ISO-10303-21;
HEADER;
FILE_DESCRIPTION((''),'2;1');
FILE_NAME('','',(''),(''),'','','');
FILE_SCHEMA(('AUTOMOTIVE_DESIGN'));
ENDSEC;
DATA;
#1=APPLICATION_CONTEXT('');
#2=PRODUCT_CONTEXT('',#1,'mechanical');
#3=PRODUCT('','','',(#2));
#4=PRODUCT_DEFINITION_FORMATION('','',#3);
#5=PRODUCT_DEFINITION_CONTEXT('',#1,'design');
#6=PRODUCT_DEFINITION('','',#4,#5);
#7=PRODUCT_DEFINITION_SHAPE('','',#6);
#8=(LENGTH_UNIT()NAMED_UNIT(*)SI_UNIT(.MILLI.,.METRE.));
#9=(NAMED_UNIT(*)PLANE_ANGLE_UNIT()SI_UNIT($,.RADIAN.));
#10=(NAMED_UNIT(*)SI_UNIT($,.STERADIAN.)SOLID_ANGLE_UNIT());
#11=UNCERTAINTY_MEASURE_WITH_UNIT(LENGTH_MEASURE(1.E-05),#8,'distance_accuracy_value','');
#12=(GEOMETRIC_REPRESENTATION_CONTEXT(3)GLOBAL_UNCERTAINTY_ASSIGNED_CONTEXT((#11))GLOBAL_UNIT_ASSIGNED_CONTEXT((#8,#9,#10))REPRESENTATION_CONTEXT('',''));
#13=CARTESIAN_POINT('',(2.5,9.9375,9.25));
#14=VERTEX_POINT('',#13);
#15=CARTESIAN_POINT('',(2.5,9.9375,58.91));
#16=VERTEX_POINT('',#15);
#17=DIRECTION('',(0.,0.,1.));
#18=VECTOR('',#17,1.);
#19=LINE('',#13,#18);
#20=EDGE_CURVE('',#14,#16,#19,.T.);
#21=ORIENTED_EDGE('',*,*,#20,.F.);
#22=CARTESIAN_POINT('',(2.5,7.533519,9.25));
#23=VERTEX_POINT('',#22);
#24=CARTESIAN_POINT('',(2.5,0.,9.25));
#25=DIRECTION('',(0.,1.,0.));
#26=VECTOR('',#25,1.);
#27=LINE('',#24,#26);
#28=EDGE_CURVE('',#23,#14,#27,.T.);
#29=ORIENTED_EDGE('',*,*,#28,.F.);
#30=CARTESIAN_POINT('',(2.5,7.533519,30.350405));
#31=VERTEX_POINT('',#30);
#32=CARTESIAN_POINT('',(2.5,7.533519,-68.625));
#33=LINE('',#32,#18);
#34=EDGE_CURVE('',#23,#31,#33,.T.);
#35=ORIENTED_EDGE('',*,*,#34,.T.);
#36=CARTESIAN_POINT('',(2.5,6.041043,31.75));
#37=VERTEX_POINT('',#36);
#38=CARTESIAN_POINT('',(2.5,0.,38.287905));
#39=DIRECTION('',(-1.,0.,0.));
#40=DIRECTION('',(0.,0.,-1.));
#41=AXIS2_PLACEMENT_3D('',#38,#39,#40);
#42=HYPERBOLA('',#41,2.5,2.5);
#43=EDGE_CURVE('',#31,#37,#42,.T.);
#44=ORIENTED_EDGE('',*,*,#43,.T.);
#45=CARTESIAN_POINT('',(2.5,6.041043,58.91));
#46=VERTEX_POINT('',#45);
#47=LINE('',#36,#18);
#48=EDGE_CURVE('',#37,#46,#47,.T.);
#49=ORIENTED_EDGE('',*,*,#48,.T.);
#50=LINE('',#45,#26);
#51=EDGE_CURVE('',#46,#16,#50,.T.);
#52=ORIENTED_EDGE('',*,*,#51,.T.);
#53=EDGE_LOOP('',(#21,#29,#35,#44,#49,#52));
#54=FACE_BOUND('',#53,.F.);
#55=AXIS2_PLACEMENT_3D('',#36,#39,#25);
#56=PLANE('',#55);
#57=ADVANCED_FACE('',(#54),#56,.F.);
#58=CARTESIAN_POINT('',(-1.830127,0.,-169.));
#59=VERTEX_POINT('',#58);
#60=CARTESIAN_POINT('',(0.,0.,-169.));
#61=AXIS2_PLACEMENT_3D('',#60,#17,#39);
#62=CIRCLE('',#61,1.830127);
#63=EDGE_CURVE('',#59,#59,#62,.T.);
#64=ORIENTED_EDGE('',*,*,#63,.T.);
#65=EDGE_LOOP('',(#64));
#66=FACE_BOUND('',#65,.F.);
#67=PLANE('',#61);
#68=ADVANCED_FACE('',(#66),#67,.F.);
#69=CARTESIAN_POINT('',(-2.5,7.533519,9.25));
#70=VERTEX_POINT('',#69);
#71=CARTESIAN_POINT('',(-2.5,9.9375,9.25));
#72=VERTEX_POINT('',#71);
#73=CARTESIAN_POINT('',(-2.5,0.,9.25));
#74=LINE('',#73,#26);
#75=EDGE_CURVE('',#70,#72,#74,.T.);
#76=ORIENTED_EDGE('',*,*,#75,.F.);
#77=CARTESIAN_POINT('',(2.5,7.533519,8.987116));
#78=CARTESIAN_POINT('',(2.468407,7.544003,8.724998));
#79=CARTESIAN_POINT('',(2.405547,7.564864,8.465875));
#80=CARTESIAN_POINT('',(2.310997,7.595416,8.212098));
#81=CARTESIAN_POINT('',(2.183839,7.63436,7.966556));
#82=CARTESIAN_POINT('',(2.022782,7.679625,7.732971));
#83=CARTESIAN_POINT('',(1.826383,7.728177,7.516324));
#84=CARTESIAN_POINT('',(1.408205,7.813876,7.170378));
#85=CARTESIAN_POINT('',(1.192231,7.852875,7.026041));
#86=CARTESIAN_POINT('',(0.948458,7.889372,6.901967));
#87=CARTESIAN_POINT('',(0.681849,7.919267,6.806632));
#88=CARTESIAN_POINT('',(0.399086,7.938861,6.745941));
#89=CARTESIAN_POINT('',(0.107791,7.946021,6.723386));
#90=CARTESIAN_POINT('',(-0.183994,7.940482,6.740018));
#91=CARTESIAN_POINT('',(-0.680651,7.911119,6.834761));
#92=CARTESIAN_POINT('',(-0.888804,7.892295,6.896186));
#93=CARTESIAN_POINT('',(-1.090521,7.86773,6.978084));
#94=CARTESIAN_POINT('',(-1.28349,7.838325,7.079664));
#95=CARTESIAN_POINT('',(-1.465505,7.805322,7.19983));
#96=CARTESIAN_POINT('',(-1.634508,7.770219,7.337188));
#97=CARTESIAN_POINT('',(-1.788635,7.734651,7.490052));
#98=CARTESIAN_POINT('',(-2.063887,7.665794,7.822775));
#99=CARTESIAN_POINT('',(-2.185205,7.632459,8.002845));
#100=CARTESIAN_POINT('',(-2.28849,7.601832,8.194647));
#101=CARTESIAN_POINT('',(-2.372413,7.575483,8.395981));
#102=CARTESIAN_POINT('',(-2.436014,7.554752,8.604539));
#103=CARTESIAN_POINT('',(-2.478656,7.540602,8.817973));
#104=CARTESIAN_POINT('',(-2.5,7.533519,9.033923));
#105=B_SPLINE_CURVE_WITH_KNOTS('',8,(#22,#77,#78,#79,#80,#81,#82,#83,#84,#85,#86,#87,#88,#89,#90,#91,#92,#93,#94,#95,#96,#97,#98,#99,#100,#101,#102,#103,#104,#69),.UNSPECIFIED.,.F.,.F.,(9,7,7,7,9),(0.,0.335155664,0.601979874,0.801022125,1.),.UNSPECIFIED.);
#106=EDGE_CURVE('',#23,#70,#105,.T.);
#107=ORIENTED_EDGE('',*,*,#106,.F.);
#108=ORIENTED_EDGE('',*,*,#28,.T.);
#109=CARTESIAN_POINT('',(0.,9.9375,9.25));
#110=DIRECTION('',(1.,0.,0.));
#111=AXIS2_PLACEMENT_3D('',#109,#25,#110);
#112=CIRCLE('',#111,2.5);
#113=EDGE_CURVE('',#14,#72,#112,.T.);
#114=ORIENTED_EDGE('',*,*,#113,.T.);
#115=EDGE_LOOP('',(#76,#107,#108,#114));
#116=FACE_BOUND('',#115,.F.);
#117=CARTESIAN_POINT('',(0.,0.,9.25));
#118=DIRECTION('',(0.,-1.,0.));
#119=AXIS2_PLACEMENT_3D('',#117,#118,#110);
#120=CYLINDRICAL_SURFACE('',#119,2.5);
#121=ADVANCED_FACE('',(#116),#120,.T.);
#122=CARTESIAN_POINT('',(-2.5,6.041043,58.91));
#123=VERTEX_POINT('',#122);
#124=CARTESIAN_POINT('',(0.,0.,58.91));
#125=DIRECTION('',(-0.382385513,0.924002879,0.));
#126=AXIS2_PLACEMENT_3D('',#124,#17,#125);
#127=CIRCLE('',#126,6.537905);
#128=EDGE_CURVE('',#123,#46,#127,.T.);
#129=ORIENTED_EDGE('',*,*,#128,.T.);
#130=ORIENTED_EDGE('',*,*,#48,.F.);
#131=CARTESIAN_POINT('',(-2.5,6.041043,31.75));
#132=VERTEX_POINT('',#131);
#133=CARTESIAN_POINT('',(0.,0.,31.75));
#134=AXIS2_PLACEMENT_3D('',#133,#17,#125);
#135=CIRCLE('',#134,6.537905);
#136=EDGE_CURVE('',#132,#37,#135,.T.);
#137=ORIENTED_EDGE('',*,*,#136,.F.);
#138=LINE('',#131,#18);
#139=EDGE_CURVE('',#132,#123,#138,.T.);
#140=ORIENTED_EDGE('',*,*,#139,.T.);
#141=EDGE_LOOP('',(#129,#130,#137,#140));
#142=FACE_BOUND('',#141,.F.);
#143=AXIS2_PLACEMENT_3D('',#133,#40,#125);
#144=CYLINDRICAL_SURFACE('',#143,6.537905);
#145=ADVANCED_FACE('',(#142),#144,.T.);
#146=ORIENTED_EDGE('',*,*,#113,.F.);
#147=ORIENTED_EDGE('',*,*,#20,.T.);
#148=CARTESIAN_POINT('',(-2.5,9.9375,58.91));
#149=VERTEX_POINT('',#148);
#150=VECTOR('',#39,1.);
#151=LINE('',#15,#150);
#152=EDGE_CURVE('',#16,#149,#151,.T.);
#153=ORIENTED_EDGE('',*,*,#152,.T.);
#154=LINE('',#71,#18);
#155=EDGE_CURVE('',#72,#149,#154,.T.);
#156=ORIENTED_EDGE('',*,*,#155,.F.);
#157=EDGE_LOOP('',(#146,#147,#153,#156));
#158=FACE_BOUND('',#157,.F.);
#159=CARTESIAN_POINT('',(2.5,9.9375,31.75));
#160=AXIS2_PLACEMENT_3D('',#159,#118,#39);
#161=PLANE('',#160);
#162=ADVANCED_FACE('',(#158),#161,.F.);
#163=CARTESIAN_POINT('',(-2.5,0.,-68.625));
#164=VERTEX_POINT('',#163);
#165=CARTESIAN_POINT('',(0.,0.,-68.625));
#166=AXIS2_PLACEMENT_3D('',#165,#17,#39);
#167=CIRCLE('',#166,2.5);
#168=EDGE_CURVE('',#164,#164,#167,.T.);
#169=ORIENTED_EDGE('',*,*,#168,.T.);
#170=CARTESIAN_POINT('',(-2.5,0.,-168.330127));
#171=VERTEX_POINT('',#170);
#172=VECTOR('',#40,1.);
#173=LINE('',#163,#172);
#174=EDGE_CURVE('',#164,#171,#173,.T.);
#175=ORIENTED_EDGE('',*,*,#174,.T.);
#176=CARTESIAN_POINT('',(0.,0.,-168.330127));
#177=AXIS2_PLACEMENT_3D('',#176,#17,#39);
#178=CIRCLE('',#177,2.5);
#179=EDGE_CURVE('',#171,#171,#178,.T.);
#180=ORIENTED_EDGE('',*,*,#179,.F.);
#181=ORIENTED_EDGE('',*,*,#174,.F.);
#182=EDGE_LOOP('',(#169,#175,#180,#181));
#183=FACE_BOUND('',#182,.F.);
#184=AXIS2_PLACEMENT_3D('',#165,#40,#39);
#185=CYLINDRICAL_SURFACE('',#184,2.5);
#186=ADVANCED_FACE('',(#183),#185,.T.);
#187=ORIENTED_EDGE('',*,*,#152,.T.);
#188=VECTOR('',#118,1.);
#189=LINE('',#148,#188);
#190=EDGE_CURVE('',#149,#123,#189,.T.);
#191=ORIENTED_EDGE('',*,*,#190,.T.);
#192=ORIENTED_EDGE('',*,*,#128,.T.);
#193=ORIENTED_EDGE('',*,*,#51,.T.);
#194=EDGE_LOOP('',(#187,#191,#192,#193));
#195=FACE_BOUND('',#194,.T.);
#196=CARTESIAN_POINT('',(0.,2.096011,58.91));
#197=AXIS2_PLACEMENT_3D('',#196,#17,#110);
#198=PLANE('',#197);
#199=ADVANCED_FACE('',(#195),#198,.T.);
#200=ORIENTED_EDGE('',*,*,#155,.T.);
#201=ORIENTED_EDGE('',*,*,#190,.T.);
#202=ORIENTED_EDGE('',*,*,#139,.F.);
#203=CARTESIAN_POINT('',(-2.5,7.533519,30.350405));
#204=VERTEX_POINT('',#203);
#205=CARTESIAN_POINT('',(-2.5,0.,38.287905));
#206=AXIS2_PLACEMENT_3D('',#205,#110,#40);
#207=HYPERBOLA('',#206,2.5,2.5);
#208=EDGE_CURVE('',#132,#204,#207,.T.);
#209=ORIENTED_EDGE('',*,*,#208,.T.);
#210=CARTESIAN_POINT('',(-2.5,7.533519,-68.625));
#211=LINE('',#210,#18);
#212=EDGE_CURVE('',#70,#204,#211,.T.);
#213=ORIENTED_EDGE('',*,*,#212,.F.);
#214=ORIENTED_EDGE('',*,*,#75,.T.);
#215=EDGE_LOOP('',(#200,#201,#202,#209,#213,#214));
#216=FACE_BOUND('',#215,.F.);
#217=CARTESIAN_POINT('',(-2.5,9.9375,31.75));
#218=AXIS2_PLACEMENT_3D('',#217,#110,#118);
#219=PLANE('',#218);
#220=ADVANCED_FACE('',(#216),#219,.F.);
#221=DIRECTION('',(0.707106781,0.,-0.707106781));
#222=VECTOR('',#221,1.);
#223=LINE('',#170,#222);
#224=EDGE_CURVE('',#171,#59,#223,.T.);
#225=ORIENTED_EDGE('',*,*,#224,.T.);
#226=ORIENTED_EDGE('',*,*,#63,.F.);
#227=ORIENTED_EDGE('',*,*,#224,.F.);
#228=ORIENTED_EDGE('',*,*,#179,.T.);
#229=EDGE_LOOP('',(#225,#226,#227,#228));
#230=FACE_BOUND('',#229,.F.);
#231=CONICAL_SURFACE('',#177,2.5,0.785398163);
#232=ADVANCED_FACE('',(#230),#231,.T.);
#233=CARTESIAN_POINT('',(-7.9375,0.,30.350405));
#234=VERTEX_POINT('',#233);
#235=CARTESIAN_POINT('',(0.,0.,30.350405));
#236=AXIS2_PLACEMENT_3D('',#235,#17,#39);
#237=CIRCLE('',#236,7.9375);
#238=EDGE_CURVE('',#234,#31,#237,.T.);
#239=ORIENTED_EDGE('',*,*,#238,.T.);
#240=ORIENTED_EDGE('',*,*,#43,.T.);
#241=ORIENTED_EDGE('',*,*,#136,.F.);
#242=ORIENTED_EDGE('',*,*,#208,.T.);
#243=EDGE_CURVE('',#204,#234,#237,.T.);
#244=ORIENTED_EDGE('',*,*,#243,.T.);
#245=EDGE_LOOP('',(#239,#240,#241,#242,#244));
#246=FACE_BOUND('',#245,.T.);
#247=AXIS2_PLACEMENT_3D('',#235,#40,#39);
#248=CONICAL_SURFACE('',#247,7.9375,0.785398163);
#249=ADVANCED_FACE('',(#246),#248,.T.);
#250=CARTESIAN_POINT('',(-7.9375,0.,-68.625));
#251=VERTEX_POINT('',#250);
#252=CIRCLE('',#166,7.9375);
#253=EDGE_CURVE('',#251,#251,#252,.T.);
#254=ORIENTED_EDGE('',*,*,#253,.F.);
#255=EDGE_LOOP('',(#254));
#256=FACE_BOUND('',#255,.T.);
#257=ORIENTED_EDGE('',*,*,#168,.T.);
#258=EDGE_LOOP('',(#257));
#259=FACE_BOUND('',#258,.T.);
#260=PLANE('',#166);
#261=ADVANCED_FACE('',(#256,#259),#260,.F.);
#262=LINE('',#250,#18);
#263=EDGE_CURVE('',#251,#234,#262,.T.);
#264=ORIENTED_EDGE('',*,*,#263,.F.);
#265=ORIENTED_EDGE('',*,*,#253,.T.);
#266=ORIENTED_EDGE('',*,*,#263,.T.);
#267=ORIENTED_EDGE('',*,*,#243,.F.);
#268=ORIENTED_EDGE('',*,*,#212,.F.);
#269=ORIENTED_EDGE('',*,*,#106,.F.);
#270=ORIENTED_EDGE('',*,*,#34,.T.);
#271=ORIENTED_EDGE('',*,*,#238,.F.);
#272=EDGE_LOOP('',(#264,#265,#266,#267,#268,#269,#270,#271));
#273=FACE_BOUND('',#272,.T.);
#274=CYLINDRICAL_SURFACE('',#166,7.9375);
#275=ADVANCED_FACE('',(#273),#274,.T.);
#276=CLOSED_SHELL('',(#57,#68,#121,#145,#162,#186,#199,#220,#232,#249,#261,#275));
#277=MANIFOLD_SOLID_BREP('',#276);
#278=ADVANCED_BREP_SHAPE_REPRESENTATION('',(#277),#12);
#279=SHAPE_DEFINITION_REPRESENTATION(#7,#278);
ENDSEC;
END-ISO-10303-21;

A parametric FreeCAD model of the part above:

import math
import FreeCAD as App
import Part
import Sketcher

V = App.Vector
Q = App.Units.Quantity

doc = App.newDocument("Part")
body = doc.addObject("PartDesign::Body", "Body")

# Sketch on YZ plane
sketch1 = body.newObject("Sketcher::SketchObject", "Sketch")
sketch1.AttachmentSupport = (doc.getObject("YZ_Plane"), [""])
sketch1.MapMode = "FlatFace"
sketch1.addGeometry([
    Part.LineSegment(V(0, 31.75, 0), V(0, -68.625, 0)),  # 0
    Part.LineSegment(V(0, -68.625, 0), V(7.9375, -68.625, 0)),  # 1
    Part.LineSegment(V(7.9375, -68.625, 0), V(7.9375, 30.350405, 0)),  # 2
    Part.LineSegment(V(7.9375, 30.350405, 0), V(6.537905, 31.75, 0)),  # 3
    Part.LineSegment(V(6.537905, 31.75, 0), V(0, 31.75, 0)),  # 4
], False)
sketch1.addConstraint([
    Sketcher.Constraint("Coincident", 0, 2, 1, 1),
    Sketcher.Constraint("Coincident", 1, 2, 2, 1),
    Sketcher.Constraint("Coincident", 2, 2, 3, 1),
    Sketcher.Constraint("Coincident", 3, 2, 4, 1),
    Sketcher.Constraint("Coincident", 4, 2, 0, 1),
    Sketcher.Constraint("Vertical", 0),
    Sketcher.Constraint("Horizontal", 1),
    Sketcher.Constraint("Vertical", 2),
    Sketcher.Constraint("Horizontal", 4),
    Sketcher.Constraint("PointOnObject", 0, 2, -2),
    Sketcher.Constraint("Angle", 3, Q("135 deg")),
    Sketcher.Constraint("DistanceY", 0, 2, 0, 1, Q("100.375 mm")),
    Sketcher.Constraint("DistanceY", -1, 1, 3, 2, Q("31.75 mm")),
    Sketcher.Constraint("DistanceX", 1, 1, 1, 2, Q("7.9375 mm")),
    Sketcher.Constraint("DistanceX", 4, 2, 4, 1, Q("6.537905 mm")),
])
revolution = body.newObject("PartDesign::Revolution", "Revolution")
revolution.Profile = sketch1
revolution.ReferenceAxis = (sketch1, ["V_Axis"])
revolution.Angle = 360

# Sketch on YZ plane
sketch2 = body.newObject("Sketcher::SketchObject", "Sketch001")
sketch2.AttachmentSupport = (doc.getObject("YZ_Plane"), [""])
sketch2.MapMode = "FlatFace"
sketch2.addGeometry([
    Part.LineSegment(V(2.5, -68.625, 0), V(0, -68.625, 0)),  # 0
    Part.LineSegment(V(0, -68.625, 0), V(0, -169, 0)),  # 1
    Part.LineSegment(V(0, -169, 0), V(1.830127, -169, 0)),  # 2
    Part.LineSegment(V(1.830127, -169, 0), V(2.5, -168.330127, 0)),  # 3
    Part.LineSegment(V(2.5, -168.330127, 0), V(2.5, -68.625, 0)),  # 4
], False)
sketch2.addConstraint([
    Sketcher.Constraint("Coincident", 0, 2, 1, 1),
    Sketcher.Constraint("Coincident", 1, 2, 2, 1),
    Sketcher.Constraint("Coincident", 2, 2, 3, 1),
    Sketcher.Constraint("Coincident", 3, 2, 4, 1),
    Sketcher.Constraint("Coincident", 4, 2, 0, 1),
    Sketcher.Constraint("Horizontal", 0),
    Sketcher.Constraint("Vertical", 1),
    Sketcher.Constraint("Horizontal", 2),
    Sketcher.Constraint("Vertical", 4),
    Sketcher.Constraint("PointOnObject", 0, 2, -2),
    Sketcher.Constraint("Angle", 3, Q("45 deg")),
    Sketcher.Constraint("DistanceX", 0, 2, 0, 1, Q("2.5 mm")),
    Sketcher.Constraint("DistanceY", 1, 2, -1, 1, Q("169 mm")),
    Sketcher.Constraint("DistanceY", 1, 2, 1, 1, Q("100.375 mm")),
    Sketcher.Constraint("DistanceX", 2, 1, 2, 2, Q("1.830127 mm")),
])
revolution2 = body.newObject("PartDesign::Revolution", "Revolution001")
revolution2.Profile = sketch2
revolution2.ReferenceAxis = (sketch2, ["V_Axis"])
revolution2.Angle = 360

# Sketch on XZ plane
sketch3 = body.newObject("Sketcher::SketchObject", "Sketch002")
sketch3.AttachmentSupport = (doc.getObject("XZ_Plane"), [""])
sketch3.MapMode = "FlatFace"
sketch3.addGeometry([
    Part.LineSegment(V(-2.5, 31.75, 0), V(2.5, 31.75, 0)),
    Part.LineSegment(V(2.5, 31.75, 0), V(2.5, 9.25, 0)),
    Part.ArcOfCircle(Part.Circle(V(0, 9.25, 0), V(0, 0, 1), 2.5), math.radians(180), math.radians(360)),
    Part.LineSegment(V(-2.5, 9.25, 0), V(-2.5, 31.75, 0)),
], False)
sketch3.addConstraint([
    Sketcher.Constraint("Coincident", 0, 2, 1, 1),
    Sketcher.Constraint("Tangent", 1, 2, 2, 2),
    Sketcher.Constraint("Tangent", 2, 1, 3, 1),
    Sketcher.Constraint("Coincident", 3, 2, 0, 1),
    Sketcher.Constraint("Horizontal", 0),
    Sketcher.Constraint("Vertical", 1),
    Sketcher.Constraint("Vertical", 3),
    Sketcher.Constraint("PointOnObject", 2, 3, -2),
    Sketcher.Constraint("Radius", 2, Q("2.5 mm")),
    Sketcher.Constraint("DistanceY", 1, 2, 1, 1, Q("22.5 mm")),
    Sketcher.Constraint("DistanceY", -1, 1, 2, 3, Q("9.25 mm")),
])
pad1 = body.newObject("PartDesign::Pad", "Pad")
pad1.Profile = sketch3
pad1.Length = 9.9375
pad1.Reversed = True

# Sketch on XY plane
sketch4 = body.newObject("Sketcher::SketchObject", "Sketch003")
sketch4.AttachmentSupport = (doc.getObject("XY_Plane"), [""])
sketch4.MapMode = "FlatFace"
sketch4.AttachmentOffset = App.Placement(V(0, 0, 31.75), App.Rotation())
sketch4.addGeometry([
    Part.LineSegment(V(2.5, 6.041043, 0), V(2.5, 9.9375, 0)),
    Part.LineSegment(V(2.5, 9.9375, 0), V(-2.5, 9.9375, 0)),
    Part.LineSegment(V(-2.5, 9.9375, 0), V(-2.5, 6.041043, 0)),
    Part.ArcOfCircle(Part.Circle(V(0, 0, 0), V(0, 0, 1), 6.537905), math.radians(112.481525), math.radians(427.518475)),
], False)
sketch4.addConstraint([
    Sketcher.Constraint("Coincident", 0, 2, 1, 1),
    Sketcher.Constraint("Coincident", 1, 2, 2, 1),
    Sketcher.Constraint("Coincident", 2, 2, 3, 1),
    Sketcher.Constraint("Coincident", 3, 2, 0, 1),
    Sketcher.Constraint("Vertical", 0),
    Sketcher.Constraint("Horizontal", 1),
    Sketcher.Constraint("Vertical", 2),
    Sketcher.Constraint("Coincident", 3, 3, -1, 1),
    Sketcher.Constraint("Horizontal", 2, 2, 3, 2),
    Sketcher.Constraint("DistanceX", 1, 2, 1, 1, Q("5 mm")),
    Sketcher.Constraint("Radius", 3, Q("6.537905 mm")),
    Sketcher.Constraint("DistanceY", -1, 1, 0, 2, Q("9.9375 mm")),
])
pad2 = body.newObject("PartDesign::Pad", "Pad001")
pad2.Profile = sketch4
pad2.Length = 27.16

doc.recompute()
